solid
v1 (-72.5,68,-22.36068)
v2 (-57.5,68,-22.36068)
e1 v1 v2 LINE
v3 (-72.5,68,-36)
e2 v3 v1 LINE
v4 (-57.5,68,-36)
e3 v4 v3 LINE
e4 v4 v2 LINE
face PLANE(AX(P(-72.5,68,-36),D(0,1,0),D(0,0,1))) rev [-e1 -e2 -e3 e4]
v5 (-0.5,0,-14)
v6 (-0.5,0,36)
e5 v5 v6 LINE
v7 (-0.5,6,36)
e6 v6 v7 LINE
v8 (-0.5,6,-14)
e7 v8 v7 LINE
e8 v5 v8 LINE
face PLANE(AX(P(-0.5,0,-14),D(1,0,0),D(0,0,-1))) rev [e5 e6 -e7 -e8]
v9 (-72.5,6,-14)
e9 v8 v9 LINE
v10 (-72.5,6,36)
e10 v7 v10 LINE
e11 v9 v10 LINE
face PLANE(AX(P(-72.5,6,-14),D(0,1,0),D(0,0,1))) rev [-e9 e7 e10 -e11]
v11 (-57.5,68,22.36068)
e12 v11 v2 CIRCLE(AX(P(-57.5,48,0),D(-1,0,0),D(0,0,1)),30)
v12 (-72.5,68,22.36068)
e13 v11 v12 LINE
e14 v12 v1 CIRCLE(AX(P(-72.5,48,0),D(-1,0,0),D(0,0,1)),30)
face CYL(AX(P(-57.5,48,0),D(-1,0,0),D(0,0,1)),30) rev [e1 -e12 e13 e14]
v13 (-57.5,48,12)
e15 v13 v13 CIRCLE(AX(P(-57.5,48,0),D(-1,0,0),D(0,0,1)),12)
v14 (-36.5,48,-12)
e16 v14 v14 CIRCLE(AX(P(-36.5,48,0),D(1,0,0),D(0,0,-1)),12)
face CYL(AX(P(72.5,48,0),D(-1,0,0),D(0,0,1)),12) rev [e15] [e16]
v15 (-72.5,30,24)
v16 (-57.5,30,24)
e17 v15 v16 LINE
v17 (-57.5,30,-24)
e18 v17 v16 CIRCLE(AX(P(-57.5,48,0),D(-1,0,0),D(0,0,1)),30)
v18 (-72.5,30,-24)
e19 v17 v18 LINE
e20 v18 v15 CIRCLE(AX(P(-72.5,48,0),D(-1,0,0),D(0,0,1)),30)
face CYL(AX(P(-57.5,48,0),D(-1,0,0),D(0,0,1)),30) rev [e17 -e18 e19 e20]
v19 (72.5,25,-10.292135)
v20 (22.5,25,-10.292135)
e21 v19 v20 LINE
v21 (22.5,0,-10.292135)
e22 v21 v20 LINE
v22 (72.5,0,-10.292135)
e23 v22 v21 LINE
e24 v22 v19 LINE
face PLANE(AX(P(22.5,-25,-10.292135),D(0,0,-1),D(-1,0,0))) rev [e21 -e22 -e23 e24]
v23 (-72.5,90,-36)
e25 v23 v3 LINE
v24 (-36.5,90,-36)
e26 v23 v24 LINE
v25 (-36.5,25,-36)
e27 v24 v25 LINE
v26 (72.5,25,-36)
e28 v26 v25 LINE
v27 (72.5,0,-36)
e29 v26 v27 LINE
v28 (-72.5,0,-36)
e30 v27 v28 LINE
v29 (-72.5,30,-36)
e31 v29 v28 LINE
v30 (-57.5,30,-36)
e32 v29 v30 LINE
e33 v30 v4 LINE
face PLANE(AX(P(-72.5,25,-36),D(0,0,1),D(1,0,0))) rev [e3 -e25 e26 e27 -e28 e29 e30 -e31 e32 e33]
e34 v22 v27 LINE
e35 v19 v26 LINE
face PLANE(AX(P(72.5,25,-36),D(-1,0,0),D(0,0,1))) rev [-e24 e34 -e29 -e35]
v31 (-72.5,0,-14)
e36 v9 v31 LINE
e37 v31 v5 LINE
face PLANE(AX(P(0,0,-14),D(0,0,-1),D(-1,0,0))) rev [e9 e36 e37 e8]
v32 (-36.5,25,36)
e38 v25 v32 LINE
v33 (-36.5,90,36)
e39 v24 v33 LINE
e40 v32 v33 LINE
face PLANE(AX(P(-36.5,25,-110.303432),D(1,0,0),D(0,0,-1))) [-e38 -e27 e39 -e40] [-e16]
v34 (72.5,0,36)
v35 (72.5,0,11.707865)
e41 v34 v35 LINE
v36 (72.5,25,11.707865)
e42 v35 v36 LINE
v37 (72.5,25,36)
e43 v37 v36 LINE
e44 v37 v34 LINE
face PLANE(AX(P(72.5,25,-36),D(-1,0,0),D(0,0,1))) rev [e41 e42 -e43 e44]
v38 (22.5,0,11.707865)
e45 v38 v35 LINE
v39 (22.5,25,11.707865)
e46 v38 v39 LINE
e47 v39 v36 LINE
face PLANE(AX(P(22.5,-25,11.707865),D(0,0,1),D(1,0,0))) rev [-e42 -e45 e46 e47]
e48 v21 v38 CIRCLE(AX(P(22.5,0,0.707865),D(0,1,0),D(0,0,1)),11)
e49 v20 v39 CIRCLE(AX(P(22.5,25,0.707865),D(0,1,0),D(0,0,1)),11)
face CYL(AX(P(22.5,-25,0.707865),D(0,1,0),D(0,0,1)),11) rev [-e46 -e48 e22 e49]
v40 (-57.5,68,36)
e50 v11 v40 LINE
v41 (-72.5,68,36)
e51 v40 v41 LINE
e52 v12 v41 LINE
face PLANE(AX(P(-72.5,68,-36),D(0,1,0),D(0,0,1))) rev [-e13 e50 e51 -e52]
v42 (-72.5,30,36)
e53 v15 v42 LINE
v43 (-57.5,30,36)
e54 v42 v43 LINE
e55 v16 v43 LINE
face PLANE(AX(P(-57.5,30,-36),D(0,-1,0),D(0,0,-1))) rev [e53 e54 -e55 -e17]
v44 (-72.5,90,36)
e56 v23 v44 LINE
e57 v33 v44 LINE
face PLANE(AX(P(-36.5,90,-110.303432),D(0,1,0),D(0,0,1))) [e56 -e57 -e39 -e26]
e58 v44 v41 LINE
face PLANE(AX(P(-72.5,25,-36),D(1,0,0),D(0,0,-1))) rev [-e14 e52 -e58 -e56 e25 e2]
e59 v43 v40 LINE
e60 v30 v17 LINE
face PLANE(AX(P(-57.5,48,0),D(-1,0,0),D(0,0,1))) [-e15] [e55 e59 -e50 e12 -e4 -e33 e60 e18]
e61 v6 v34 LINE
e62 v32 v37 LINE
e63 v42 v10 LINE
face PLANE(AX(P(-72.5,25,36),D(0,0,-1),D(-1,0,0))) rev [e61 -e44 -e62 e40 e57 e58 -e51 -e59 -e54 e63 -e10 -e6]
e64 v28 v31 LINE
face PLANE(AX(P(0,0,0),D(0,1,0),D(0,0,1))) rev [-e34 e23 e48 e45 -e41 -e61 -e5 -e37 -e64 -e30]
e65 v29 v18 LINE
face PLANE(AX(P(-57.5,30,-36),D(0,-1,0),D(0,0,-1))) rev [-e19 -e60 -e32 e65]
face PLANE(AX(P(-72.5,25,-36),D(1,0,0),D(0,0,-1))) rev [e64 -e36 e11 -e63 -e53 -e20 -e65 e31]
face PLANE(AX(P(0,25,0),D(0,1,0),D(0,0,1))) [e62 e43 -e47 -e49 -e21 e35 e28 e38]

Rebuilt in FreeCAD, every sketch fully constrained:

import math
import FreeCAD as App
import Part
import Sketcher
from FreeCAD import Vector
Q = App.Units.Quantity

doc = App.newDocument("Part")
body = doc.addObject("PartDesign::Body", "Body")

# Sketch on XZ plane
sketch1 = doc.addObject("Sketcher::SketchObject", "Sketch")
body.addObject(sketch1)
sketch1.AttachmentSupport = (doc.XZ_Plane, [""])
sketch1.MapMode = "FlatFace"
sketch1.addGeometry(Part.LineSegment(Vector(-72, -36, 0), Vector(-72, 36, 0)), False)
sketch1.addGeometry(Part.LineSegment(Vector(-72, 36, 0), Vector(72, 36, 0)), False)
sketch1.addGeometry(Part.LineSegment(Vector(72, 36, 0), Vector(72, -36, 0)), False)
sketch1.addGeometry(Part.LineSegment(Vector(72, -36, 0), Vector(-72, -36, 0)), False)
sketch1.addConstraint(Sketcher.Constraint("Coincident", 0, 2, 1, 1))
sketch1.addConstraint(Sketcher.Constraint("Coincident", 1, 2, 2, 1))
sketch1.addConstraint(Sketcher.Constraint("Coincident", 2, 2, 3, 1))
sketch1.addConstraint(Sketcher.Constraint("Coincident", 3, 2, 0, 1))
sketch1.addConstraint(Sketcher.Constraint("Vertical", 0))
sketch1.addConstraint(Sketcher.Constraint("Horizontal", 1))
sketch1.addConstraint(Sketcher.Constraint("Vertical", 2))
sketch1.addConstraint(Sketcher.Constraint("Horizontal", 3))
sketch1.addConstraint(Sketcher.Constraint("Symmetric", 0, 2, 2, 2, -1, 1))
sketch1.addConstraint(Sketcher.Constraint("DistanceX", 1, 1, 1, 2, Q("145 mm")))
sketch1.addConstraint(Sketcher.Constraint("DistanceY", 0, 1, 0, 2, Q("72 mm")))
pad1 = doc.addObject("PartDesign::Pad", "Pad")
body.addObject(pad1)
pad1.Profile = sketch1
pad1.Length = 25
pad1.Reversed = True

# Sketch on XY plane
sketch2 = doc.addObject("Sketcher::SketchObject", "Sketch001")
body.addObject(sketch2)
sketch2.AttachmentSupport = (doc.XY_Plane, [""])
sketch2.MapMode = "FlatFace"
sketch2.AttachmentOffset = App.Placement(Vector(0, 0, 36), App.Rotation())
sketch2.addGeometry(Part.LineSegment(Vector(-72, 6, 0), Vector(-72, 0, 0)), False)
sketch2.addGeometry(Part.LineSegment(Vector(-72, 0, 0), Vector(0, 0, 0)), False)
sketch2.addGeometry(Part.LineSegment(Vector(0, 0, 0), Vector(0, 6, 0)), False)
sketch2.addGeometry(Part.LineSegment(Vector(0, 6, 0), Vector(-72, 6, 0)), False)
sketch2.addConstraint(Sketcher.Constraint("Coincident", 0, 2, 1, 1))
sketch2.addConstraint(Sketcher.Constraint("Coincident", 1, 2, 2, 1))
sketch2.addConstraint(Sketcher.Constraint("Coincident", 2, 2, 3, 1))
sketch2.addConstraint(Sketcher.Constraint("Coincident", 3, 2, 0, 1))
sketch2.addConstraint(Sketcher.Constraint("Vertical", 0))
sketch2.addConstraint(Sketcher.Constraint("Horizontal", 1))
sketch2.addConstraint(Sketcher.Constraint("Vertical", 2))
sketch2.addConstraint(Sketcher.Constraint("Horizontal", 3))
sketch2.addConstraint(Sketcher.Constraint("PointOnObject", 0, 2, -1))
sketch2.addConstraint(Sketcher.Constraint("DistanceX", 1, 1, 1, 2, Q("72 mm")))
sketch2.addConstraint(Sketcher.Constraint("DistanceY", 0, 2, 0, 1, Q("6 mm")))
sketch2.addConstraint(Sketcher.Constraint("DistanceX", 0, 2, -1, 1, Q("72.5 mm")))
pocket1 = doc.addObject("PartDesign::Pocket", "Pocket")
body.addObject(pocket1)
pocket1.Profile = sketch2
pocket1.Length = 50

# Sketch on XZ plane
sketch3 = doc.addObject("Sketcher::SketchObject", "Sketch002")
body.addObject(sketch3)
sketch3.AttachmentSupport = (doc.XZ_Plane, [""])
sketch3.MapMode = "FlatFace"
sketch3.AttachmentOffset = App.Placement(Vector(0, 0, -25), App.Rotation())
sketch3.addGeometry(Part.LineSegment(Vector(72, -10, 0), Vector(22, -10, 0)), False)
sketch3.addGeometry(Part.ArcOfCircle(Part.Circle(Vector(22, 1, 0), Vector(0, 0, 1), 11), math.radians(90), math.radians(270)), False)
sketch3.addGeometry(Part.LineSegment(Vector(22, 12, 0), Vector(72, 12, 0)), False)
sketch3.addGeometry(Part.LineSegment(Vector(72, 12, 0), Vector(72, -10, 0)), False)
sketch3.addConstraint(Sketcher.Constraint("Tangent", 0, 2, 1, 2))
sketch3.addConstraint(Sketcher.Constraint("Tangent", 1, 1, 2, 1))
sketch3.addConstraint(Sketcher.Constraint("Coincident", 2, 2, 3, 1))
sketch3.addConstraint(Sketcher.Constraint("Coincident", 3, 2, 0, 1))
sketch3.addConstraint(Sketcher.Constraint("Horizontal", 0))
sketch3.addConstraint(Sketcher.Constraint("Horizontal", 2))
sketch3.addConstraint(Sketcher.Constraint("Vertical", 3))
sketch3.addConstraint(Sketcher.Constraint("Radius", 1, Q("11 mm")))
sketch3.addConstraint(Sketcher.Constraint("DistanceX", 0, 2, 0, 1, Q("50 mm")))
sketch3.addConstraint(Sketcher.Constraint("DistanceX", -1, 1, 1, 3, Q("22.5 mm")))
sketch3.addConstraint(Sketcher.Constraint("DistanceY", -1, 1, 1, 3, Q("0.707865 mm")))
pocket2 = doc.addObject("PartDesign::Pocket", "Pocket001")
body.addObject(pocket2)
pocket2.Profile = sketch3
pocket2.Length = 50
pocket2.Reversed = True

# Sketch on XY plane
sketch4 = doc.addObject("Sketcher::SketchObject", "Sketch003")
body.addObject(sketch4)
sketch4.AttachmentSupport = (doc.XY_Plane, [""])
sketch4.MapMode = "FlatFace"
sketch4.AttachmentOffset = App.Placement(Vector(0, 0, 36), App.Rotation())
sketch4.addGeometry(Part.LineSegment(Vector(-72, 90, 0), Vector(-72, 25, 0)), False)
sketch4.addGeometry(Part.LineSegment(Vector(-72, 25, 0), Vector(-36, 25, 0)), False)
sketch4.addGeometry(Part.LineSegment(Vector(-36, 25, 0), Vector(-36, 90, 0)), False)
sketch4.addGeometry(Part.LineSegment(Vector(-36, 90, 0), Vector(-72, 90, 0)), False)
sketch4.addConstraint(Sketcher.Constraint("Coincident", 0, 2, 1, 1))
sketch4.addConstraint(Sketcher.Constraint("Coincident", 1, 2, 2, 1))
sketch4.addConstraint(Sketcher.Constraint("Coincident", 2, 2, 3, 1))
sketch4.addConstraint(Sketcher.Constraint("Coincident", 3, 2, 0, 1))
sketch4.addConstraint(Sketcher.Constraint("Vertical", 0))
sketch4.addConstraint(Sketcher.Constraint("Horizontal", 1))
sketch4.addConstraint(Sketcher.Constraint("Vertical", 2))
sketch4.addConstraint(Sketcher.Constraint("Horizontal", 3))
sketch4.addConstraint(Sketcher.Constraint("DistanceX", 1, 1, 1, 2, Q("36 mm")))
sketch4.addConstraint(Sketcher.Constraint("DistanceY", 0, 2, 0, 1, Q("65 mm")))
sketch4.addConstraint(Sketcher.Constraint("DistanceY", -1, 1, 0, 2, Q("25 mm")))
sketch4.addConstraint(Sketcher.Constraint("DistanceX", 0, 2, -1, 1, Q("72.5 mm")))
pad2 = doc.addObject("PartDesign::Pad", "Pad001")
body.addObject(pad2)
pad2.Profile = sketch4
pad2.Length = 72
pad2.Reversed = True

# Sketch on YZ plane
sketch5 = doc.addObject("Sketcher::SketchObject", "Sketch004")
body.addObject(sketch5)
sketch5.AttachmentSupport = (doc.YZ_Plane, [""])
sketch5.MapMode = "FlatFace"
sketch5.AttachmentOffset = App.Placement(Vector(0, 0, -72.5), App.Rotation())
sketch5.addGeometry(Part.Circle(Vector(48, 0, 0), Vector(0, 0, 1), 30), False)
sketch5.addConstraint(Sketcher.Constraint("PointOnObject", 0, 3, -1))
sketch5.addConstraint(Sketcher.Constraint("Diameter", 0, Q("60 mm")))
sketch5.addConstraint(Sketcher.Constraint("DistanceX", -1, 1, 0, 3, Q("48 mm")))
pocket3 = doc.addObject("PartDesign::Pocket", "Pocket002")
body.addObject(pocket3)
pocket3.Profile = sketch5
pocket3.Length = 15
pocket3.Reversed = True

# Sketch on XY plane
sketch6 = doc.addObject("Sketcher::SketchObject", "Sketch005")
body.addObject(sketch6)
sketch6.AttachmentSupport = (doc.XY_Plane, [""])
sketch6.MapMode = "FlatFace"
sketch6.AttachmentOffset = App.Placement(Vector(0, 0, 36), App.Rotation())
sketch6.addGeometry(Part.LineSegment(Vector(-72, 68, 0), Vector(-72, 30, 0)), False)
sketch6.addGeometry(Part.LineSegment(Vector(-72, 30, 0), Vector(-58, 30, 0)), False)
sketch6.addGeometry(Part.LineSegment(Vector(-58, 30, 0), Vector(-58, 68, 0)), False)
sketch6.addGeometry(Part.LineSegment(Vector(-58, 68, 0), Vector(-72, 68, 0)), False)
sketch6.addConstraint(Sketcher.Constraint("Coincident", 0, 2, 1, 1))
sketch6.addConstraint(Sketcher.Constraint("Coincident", 1, 2, 2, 1))
sketch6.addConstraint(Sketcher.Constraint("Coincident", 2, 2, 3, 1))
sketch6.addConstraint(Sketcher.Constraint("Coincident", 3, 2, 0, 1))
sketch6.addConstraint(Sketcher.Constraint("Vertical", 0))
sketch6.addConstraint(Sketcher.Constraint("Horizontal", 1))
sketch6.addConstraint(Sketcher.Constraint("Vertical", 2))
sketch6.addConstraint(Sketcher.Constraint("Horizontal", 3))
sketch6.addConstraint(Sketcher.Constraint("DistanceX", 1, 1, 1, 2, Q("15 mm")))
sketch6.addConstraint(Sketcher.Constraint("DistanceY", 0, 2, 0, 1, Q("38 mm")))
sketch6.addConstraint(Sketcher.Constraint("DistanceY", -1, 1, 0, 2, Q("30 mm")))
sketch6.addConstraint(Sketcher.Constraint("DistanceX", 0, 2, -1, 1, Q("72.5 mm")))
pocket4 = doc.addObject("PartDesign::Pocket", "Pocket003")
body.addObject(pocket4)
pocket4.Profile = sketch6
pocket4.Type = "ThroughAll"

# Sketch on YZ plane
sketch7 = doc.addObject("Sketcher::SketchObject", "Sketch006")
body.addObject(sketch7)
sketch7.AttachmentSupport = (doc.YZ_Plane, [""])
sketch7.MapMode = "FlatFace"
sketch7.AttachmentOffset = App.Placement(Vector(0, 0, -57.5), App.Rotation())
sketch7.addGeometry(Part.Circle(Vector(48, 0, 0), Vector(0, 0, 1), 12), False)
sketch7.addConstraint(Sketcher.Constraint("PointOnObject", 0, 3, -1))
sketch7.addConstraint(Sketcher.Constraint("Diameter", 0, Q("24 mm")))
sketch7.addConstraint(Sketcher.Constraint("DistanceX", -1, 1, 0, 3, Q("48 mm")))
pocket5 = doc.addObject("PartDesign::Pocket", "Pocket004")
body.addObject(pocket5)
pocket5.Profile = sketch7
pocket5.Type = "ThroughAll"
pocket5.Reversed = True

doc.recompute()
